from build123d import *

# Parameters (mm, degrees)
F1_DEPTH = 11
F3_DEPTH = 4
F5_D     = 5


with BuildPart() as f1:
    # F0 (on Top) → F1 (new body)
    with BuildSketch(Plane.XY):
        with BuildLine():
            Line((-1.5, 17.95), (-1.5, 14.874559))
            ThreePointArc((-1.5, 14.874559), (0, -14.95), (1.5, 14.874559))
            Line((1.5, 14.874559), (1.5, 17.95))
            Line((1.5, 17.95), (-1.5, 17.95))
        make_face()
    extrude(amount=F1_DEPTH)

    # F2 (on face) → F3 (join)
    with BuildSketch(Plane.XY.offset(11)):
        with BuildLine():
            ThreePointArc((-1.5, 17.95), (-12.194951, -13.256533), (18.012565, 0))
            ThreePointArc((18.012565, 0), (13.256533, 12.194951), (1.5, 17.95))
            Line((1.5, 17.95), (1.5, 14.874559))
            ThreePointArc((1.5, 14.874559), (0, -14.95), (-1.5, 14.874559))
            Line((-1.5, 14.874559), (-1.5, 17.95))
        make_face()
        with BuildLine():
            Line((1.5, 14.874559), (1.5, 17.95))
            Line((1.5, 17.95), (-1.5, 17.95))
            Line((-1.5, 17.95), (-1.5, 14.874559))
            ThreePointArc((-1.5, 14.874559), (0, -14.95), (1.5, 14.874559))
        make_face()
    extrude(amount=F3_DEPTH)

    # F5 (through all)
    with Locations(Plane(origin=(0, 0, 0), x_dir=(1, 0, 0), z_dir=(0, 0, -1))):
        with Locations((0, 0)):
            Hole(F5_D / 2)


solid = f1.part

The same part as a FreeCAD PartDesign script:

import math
import FreeCAD as App
import Part
import Sketcher

doc = App.newDocument("Part")
body = doc.addObject("PartDesign::Body", "Body")

sketch1 = body.newObject("Sketcher::SketchObject", "Sketch")
sketch1.AttachmentSupport = (doc.getObject("XY_Plane"), [""])
sketch1.MapMode = "FlatFace"
sketch1.addGeometry([
    Part.LineSegment(App.Vector(-1.5, 17.9, 0), App.Vector(-1.5, 14.9, 0)),
    Part.ArcOfCircle(Part.Circle(App.Vector(0, 0, 0), App.Vector(0, 0, 1), 15), math.radians(96), math.radians(444)),
    Part.LineSegment(App.Vector(1.5, 14.9, 0), App.Vector(1.5, 17.9, 0)),
    Part.LineSegment(App.Vector(1.5, 17.9, 0), App.Vector(-1.5, 17.9, 0)),
], False)
sketch1.addConstraint([
    Sketcher.Constraint("Coincident", 0, 2, 1, 1),
    Sketcher.Constraint("Coincident", 1, 2, 2, 1),
    Sketcher.Constraint("Coincident", 2, 2, 3, 1),
    Sketcher.Constraint("Coincident", 3, 2, 0, 1),
    Sketcher.Constraint("Vertical", 0),
    Sketcher.Constraint("Vertical", 2),
    Sketcher.Constraint("Horizontal", 3),
    Sketcher.Constraint("Coincident", 1, 3, -1, 1),
    Sketcher.Constraint("Horizontal", 0, 2, 1, 2),
    Sketcher.Constraint("DistanceX", 3, 2, 3, 1, 3.0),
    Sketcher.Constraint("Radius", 1, 14.95),
    Sketcher.Constraint("DistanceY", -1, 1, 2, 2, 17.95),
])
pad1 = body.newObject("PartDesign::Pad", "Pad")
pad1.Profile = sketch1
pad1.Length = 11

sketch2 = body.newObject("Sketcher::SketchObject", "Sketch001")
sketch2.AttachmentSupport = (doc.getObject("XY_Plane"), [""])
sketch2.MapMode = "FlatFace"
sketch2.AttachmentOffset = App.Placement(App.Vector(0, 0, 11), App.Rotation())
sketch2.addGeometry([
    Part.ArcOfCircle(Part.Circle(App.Vector(0, 0, 0), App.Vector(0, 0, 1), 18), math.radians(95), math.radians(360)),
    Part.ArcOfCircle(Part.Circle(App.Vector(0, 0, 0), App.Vector(0, 0, 1), 18), math.radians(0), math.radians(85)),
    Part.LineSegment(App.Vector(1.5, 17.9, 0), App.Vector(-1.5, 17.9, 0)),
], False)
sketch2.addConstraint([
    Sketcher.Constraint("Tangent", 0, 2, 1, 1),
    Sketcher.Constraint("Coincident", 1, 2, 2, 1),
    Sketcher.Constraint("Coincident", 2, 2, 0, 1),
    Sketcher.Constraint("Horizontal", 2),
    Sketcher.Constraint("Coincident", 0, 3, -1, 1),
    Sketcher.Constraint("Equal", 0, 1),
    Sketcher.Constraint("PointOnObject", 0, 2, -1),
    Sketcher.Constraint("DistanceX", 2, 2, 2, 1, 3.0),
    Sketcher.Constraint("DistanceY", -1, 1, 1, 2, 17.95),
])
pad2 = body.newObject("PartDesign::Pad", "Pad001")
pad2.Profile = sketch2
pad2.Length = 4

sketch3 = body.newObject("Sketcher::SketchObject", "Sketch002")
sketch3.AttachmentSupport = (doc.getObject("XY_Plane"), [""])
sketch3.MapMode = "FlatFace"
sketch3.addGeometry(Part.Circle(App.Vector(0, 0, 0), App.Vector(0, 0, 1), 2.5), False)
sketch3.addConstraint([
    Sketcher.Constraint("Coincident", 0, 3, -1, 1),
    Sketcher.Constraint("Diameter", 0, 5.0),
])
doc.recompute()
hole = body.newObject("PartDesign::Hole", "Hole")
hole.Profile = sketch3
hole.ThreadType = "None"
hole.Diameter = 5
hole.DepthType = "ThroughAll"
hole.Reversed = True

doc.recompute()
